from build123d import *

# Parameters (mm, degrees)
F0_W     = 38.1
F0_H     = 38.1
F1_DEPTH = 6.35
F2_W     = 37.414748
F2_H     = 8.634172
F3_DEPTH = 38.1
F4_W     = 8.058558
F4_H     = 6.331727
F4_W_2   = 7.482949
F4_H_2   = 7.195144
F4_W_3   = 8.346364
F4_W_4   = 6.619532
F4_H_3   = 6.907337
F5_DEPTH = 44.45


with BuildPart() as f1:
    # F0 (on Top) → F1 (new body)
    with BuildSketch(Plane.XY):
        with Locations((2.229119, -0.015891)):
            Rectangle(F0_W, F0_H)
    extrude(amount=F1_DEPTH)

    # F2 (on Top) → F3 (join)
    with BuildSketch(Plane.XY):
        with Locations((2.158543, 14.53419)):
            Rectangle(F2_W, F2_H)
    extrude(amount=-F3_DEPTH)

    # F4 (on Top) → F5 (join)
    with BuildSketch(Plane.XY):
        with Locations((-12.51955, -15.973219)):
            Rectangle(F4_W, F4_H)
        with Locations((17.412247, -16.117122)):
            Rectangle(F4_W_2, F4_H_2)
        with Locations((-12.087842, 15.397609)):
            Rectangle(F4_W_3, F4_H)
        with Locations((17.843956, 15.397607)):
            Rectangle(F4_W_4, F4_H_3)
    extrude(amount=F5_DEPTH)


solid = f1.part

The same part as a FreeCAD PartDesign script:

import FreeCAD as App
import Part
import Sketcher
from FreeCAD import Vector
Q = App.Units.Quantity


def add_polygon(sketch, points):
    """Adds a closed chain of lines whose ends are joined by coincident constraints."""
    first, n = sketch.GeometryCount, len(points)
    for a, b in zip(points, points[1:] + points[:1]):
        sketch.addGeometry(Part.LineSegment(App.Vector(*a, 0), App.Vector(*b, 0)), False)
    for i in range(n):
        sketch.addConstraint(Sketcher.Constraint("Coincident", first + i, 2, first + (i + 1) % n, 1))

doc = App.newDocument("Part")
body = doc.addObject("PartDesign::Body", "Body")

# Sketch on XY plane
sketch1 = body.newObject("Sketcher::SketchObject", "Sketch")
sketch1.AttachmentSupport = (doc.getObject("XY_Plane"), [""])
sketch1.MapMode = "FlatFace"
add_polygon(sketch1, [(-17, 19), (-17, -19), (21, -19), (21, 19)])  # lines 0-3
sketch1.addConstraint([
    Sketcher.Constraint("Vertical", 0),
    Sketcher.Constraint("Horizontal", 1),
    Sketcher.Constraint("Vertical", 2),
    Sketcher.Constraint("Horizontal", 3),
    Sketcher.Constraint("Equal", 3, 0),
    Sketcher.Constraint("DistanceX", 1, 1, 1, 2, Q("1.5 in")),
    Sketcher.Constraint("DistanceX", 0, 2, -1, 1, Q("16.820881 mm")),
    Sketcher.Constraint("DistanceY", 0, 2, -1, 1, Q("19.065891 mm")),
])
pad1 = body.newObject("PartDesign::Pad", "Pad")
pad1.Profile = sketch1
pad1.Length = Q("0.25 in")

# Sketch on XY plane
sketch2 = body.newObject("Sketcher::SketchObject", "Sketch001")
sketch2.AttachmentSupport = (doc.getObject("XY_Plane"), [""])
sketch2.MapMode = "FlatFace"
add_polygon(sketch2, [(-17, 19), (-17, 10), (21, 10), (21, 19)])  # lines 0-3
sketch2.addConstraint([
    Sketcher.Constraint("Vertical", 0),
    Sketcher.Constraint("Horizontal", 1),
    Sketcher.Constraint("Vertical", 2),
    Sketcher.Constraint("Horizontal", 3),
    Sketcher.Constraint("DistanceX", 1, 1, 1, 2, Q("37.414748 mm")),
    Sketcher.Constraint("DistanceY", 0, 2, 0, 1, Q("8.634172 mm")),
    Sketcher.Constraint("DistanceX", 0, 2, -1, 1, Q("16.548831 mm")),
    Sketcher.Constraint("DistanceY", -1, 1, 0, 2, Q("10.217104 mm")),
])
pad2 = body.newObject("PartDesign::Pad", "Pad001")
pad2.Profile = sketch2
pad2.Length = Q("1.5 in")
pad2.Reversed = True

# Sketch on XY plane
sketch3 = body.newObject("Sketcher::SketchObject", "Sketch002")
sketch3.AttachmentSupport = (doc.getObject("XY_Plane"), [""])
sketch3.MapMode = "FlatFace"
add_polygon(sketch3, [(-17, -13), (-17, -19), (-8, -19), (-8, -13)])  # lines 0-3
add_polygon(sketch3, [(14, -13), (14, -20), (21, -20), (21, -13)])  # lines 4-7
add_polygon(sketch3, [(-16, 19), (-16, 12), (-8, 12), (-8, 19)])  # lines 8-11
add_polygon(sketch3, [(15, 19), (15, 12), (21, 12), (21, 19)])  # lines 12-15
sketch3.addConstraint([
    Sketcher.Constraint("Vertical", 0),
    Sketcher.Constraint("Horizontal", 1),
    Sketcher.Constraint("Vertical", 2),
    Sketcher.Constraint("Horizontal", 3),
    Sketcher.Constraint("Vertical", 4),
    Sketcher.Constraint("Horizontal", 5),
    Sketcher.Constraint("Vertical", 6),
    Sketcher.Constraint("Horizontal", 7),
    Sketcher.Constraint("Vertical", 8),
    Sketcher.Constraint("Horizontal", 9),
    Sketcher.Constraint("Vertical", 10),
    Sketcher.Constraint("Horizontal", 11),
    Sketcher.Constraint("Vertical", 12),
    Sketcher.Constraint("Horizontal", 13),
    Sketcher.Constraint("Vertical", 14),
    Sketcher.Constraint("Horizontal", 15),
    Sketcher.Constraint("Vertical", 6, 2, 13, 2),
    Sketcher.Constraint("Equal", 2, 8),
    Sketcher.Constraint("DistanceX", 1, 1, 1, 2, Q("8.058558 mm")),
    Sketcher.Constraint("DistanceX", 5, 1, 5, 2, Q("7.482949 mm")),
    Sketcher.Constraint("DistanceX", 13, 1, 13, 2, Q("6.619532 mm")),
    Sketcher.Constraint("DistanceX", 0, 2, 4, 2, Q("30.219602 mm")),
    Sketcher.Constraint("DistanceY", 3, 2, 8, 2, Q("25.039101 mm")),
    Sketcher.Constraint("DistanceX", 9, 1, 9, 2, Q("8.346364 mm")),
    Sketcher.Constraint("DistanceY", 0, 2, 0, 1, Q("6.331727 mm")),
    Sketcher.Constraint("DistanceY", 4, 2, 4, 1, Q("7.195144 mm")),
    Sketcher.Constraint("DistanceY", 12, 2, 12, 1, Q("6.907337 mm")),
    Sketcher.Constraint("DistanceX", 0, 2, -1, 1, Q("16.548829 mm")),
    Sketcher.Constraint("DistanceY", 6, 2, -1, 1, Q("12.51955 mm")),
    Sketcher.Constraint("DistanceX", 9, 2, -1, 1, Q("7.91466 mm")),
    Sketcher.Constraint("DistanceY", -1, 1, 12, 2, Q("11.943938 mm")),
    Sketcher.Constraint("DistanceY", 4, 2, 1, 2, Q("0.575612 mm")),
])
pad3 = body.newObject("PartDesign::Pad", "Pad002")
pad3.Profile = sketch3
pad3.Length = Q("1.75 in")

doc.recompute()
